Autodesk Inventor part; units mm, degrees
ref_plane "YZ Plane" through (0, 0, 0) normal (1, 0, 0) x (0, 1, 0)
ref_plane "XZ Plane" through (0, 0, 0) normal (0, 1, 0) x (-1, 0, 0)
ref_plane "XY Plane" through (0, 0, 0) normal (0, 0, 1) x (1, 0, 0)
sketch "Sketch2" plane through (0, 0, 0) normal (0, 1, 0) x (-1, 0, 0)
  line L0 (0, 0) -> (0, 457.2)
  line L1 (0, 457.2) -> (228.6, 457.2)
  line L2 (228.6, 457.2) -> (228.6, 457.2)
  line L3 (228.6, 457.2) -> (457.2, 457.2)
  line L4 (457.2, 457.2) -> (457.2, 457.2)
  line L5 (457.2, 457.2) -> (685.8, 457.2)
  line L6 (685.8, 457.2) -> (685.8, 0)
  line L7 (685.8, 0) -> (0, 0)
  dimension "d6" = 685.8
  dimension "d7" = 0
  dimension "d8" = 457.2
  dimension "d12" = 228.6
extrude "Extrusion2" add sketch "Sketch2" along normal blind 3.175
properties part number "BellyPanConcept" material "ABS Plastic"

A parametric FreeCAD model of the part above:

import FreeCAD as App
import Part
import Sketcher

V = App.Vector
Q = App.Units.Quantity

doc = App.newDocument("Part")
params = doc.addObject("Spreadsheet::Sheet", "Params")
for row, (alias, value) in enumerate([
    ("sketch1_width", "27 in"),
    ("sketch1_height", "18 in"),
    ("pad1_length", "0.125 in"),
], start=1):
    params.set(f"A{row}", alias)
    params.set(f"B{row}", "=" + value)
    params.setAlias(f"B{row}", alias)

body = doc.addObject("PartDesign::Body", "Body")

sketch1 = body.newObject("Sketcher::SketchObject", "Sketch")
sketch1.AttachmentSupport = (doc.getObject("XZ_Plane"), [""])
sketch1.MapMode = "FlatFace"
sketch1.addGeometry([
    Part.LineSegment(V(0, 457, 0), V(0, 0, 0)),
    Part.LineSegment(V(0, 0, 0), V(-686, 0, 0)),
    Part.LineSegment(V(-686, 0, 0), V(-686, 457, 0)),
    Part.LineSegment(V(-686, 457, 0), V(0, 457, 0)),
], False)
sketch1.addConstraint([
    Sketcher.Constraint("Coincident", 0, 2, 1, 1),
    Sketcher.Constraint("Coincident", 1, 2, 2, 1),
    Sketcher.Constraint("Coincident", 2, 2, 3, 1),
    Sketcher.Constraint("Coincident", 3, 2, 0, 1),
    Sketcher.Constraint("Vertical", 0),
    Sketcher.Constraint("Horizontal", 1),
    Sketcher.Constraint("Vertical", 2),
    Sketcher.Constraint("Horizontal", 3),
    Sketcher.Constraint("Coincident", 0, 2, -1, 1),
    Sketcher.Constraint("DistanceX", 1, 2, 1, 1, Q("27 in")),
    Sketcher.Constraint("DistanceY", 0, 2, 0, 1, Q("18 in")),
])
sketch1.setExpression("Constraints[9]", "Params.sketch1_width")
sketch1.setExpression("Constraints[10]", "Params.sketch1_height")
pad1 = body.newObject("PartDesign::Pad", "Pad")
pad1.Profile = sketch1
pad1.setExpression("Length", "Params.pad1_length")
pad1.Reversed = True

doc.recompute()
